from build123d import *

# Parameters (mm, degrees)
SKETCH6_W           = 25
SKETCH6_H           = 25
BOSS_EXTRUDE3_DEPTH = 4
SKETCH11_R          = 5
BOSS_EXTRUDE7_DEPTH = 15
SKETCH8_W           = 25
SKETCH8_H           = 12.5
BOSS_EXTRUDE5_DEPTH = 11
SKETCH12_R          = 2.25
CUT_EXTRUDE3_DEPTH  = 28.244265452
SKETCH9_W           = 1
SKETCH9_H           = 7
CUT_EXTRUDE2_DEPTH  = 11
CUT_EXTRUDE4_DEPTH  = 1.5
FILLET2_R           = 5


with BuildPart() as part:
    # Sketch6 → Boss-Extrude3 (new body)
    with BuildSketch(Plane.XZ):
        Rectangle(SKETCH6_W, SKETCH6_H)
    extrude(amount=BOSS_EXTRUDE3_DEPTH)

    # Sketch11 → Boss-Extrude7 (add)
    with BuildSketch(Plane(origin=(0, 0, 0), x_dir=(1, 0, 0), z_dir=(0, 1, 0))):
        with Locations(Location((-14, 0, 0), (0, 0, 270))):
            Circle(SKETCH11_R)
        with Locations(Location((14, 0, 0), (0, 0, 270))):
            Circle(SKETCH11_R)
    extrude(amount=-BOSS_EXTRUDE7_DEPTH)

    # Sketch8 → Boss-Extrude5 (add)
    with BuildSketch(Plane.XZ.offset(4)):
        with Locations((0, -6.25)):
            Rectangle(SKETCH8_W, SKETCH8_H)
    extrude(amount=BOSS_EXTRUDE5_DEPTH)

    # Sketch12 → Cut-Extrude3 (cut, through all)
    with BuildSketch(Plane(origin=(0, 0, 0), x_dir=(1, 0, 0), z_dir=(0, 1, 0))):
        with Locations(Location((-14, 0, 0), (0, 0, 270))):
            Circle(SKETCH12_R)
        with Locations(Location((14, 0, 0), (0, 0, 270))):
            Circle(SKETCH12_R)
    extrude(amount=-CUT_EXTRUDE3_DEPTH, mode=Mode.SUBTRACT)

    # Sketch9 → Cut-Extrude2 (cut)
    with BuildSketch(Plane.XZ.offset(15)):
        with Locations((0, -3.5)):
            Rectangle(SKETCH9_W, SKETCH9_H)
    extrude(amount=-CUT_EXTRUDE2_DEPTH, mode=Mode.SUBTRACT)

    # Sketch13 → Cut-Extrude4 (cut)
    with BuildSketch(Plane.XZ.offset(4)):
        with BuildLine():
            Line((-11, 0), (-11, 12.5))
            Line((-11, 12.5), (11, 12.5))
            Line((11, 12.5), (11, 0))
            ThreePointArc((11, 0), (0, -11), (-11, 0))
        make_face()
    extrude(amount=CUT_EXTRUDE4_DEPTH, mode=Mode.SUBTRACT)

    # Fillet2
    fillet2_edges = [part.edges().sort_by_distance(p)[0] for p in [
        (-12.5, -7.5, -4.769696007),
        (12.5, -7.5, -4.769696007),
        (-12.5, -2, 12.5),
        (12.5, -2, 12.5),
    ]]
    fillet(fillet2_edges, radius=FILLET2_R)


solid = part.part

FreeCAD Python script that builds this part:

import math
import FreeCAD as App
import Part
import Sketcher

V = App.Vector
Q = App.Units.Quantity


def edges_at(feature, points):
    """Names of the edges that pass closest to the given points."""
    edges = feature.Shape.Edges
    near = lambda p: min(range(len(edges)), key=lambda i: edges[i].distToShape(Part.Vertex(*p))[0])
    return sorted({f"Edge{near(p) + 1}" for p in points})

doc = App.newDocument("Part")
body = doc.addObject("PartDesign::Body", "Body")

sketch1 = body.newObject("Sketcher::SketchObject", "Sketch")
sketch1.AttachmentSupport = (doc.getObject("XZ_Plane"), [""])
sketch1.MapMode = "FlatFace"
sketch1.addGeometry(Part.LineSegment(V(-12.5, 12.5, 0), V(-12.5, -12.5, 0)), False)
sketch1.addGeometry(Part.LineSegment(V(-12.5, -12.5, 0), V(12.5, -12.5, 0)), False)
sketch1.addGeometry(Part.LineSegment(V(12.5, -12.5, 0), V(12.5, 12.5, 0)), False)
sketch1.addGeometry(Part.LineSegment(V(12.5, 12.5, 0), V(-12.5, 12.5, 0)), False)
sketch1.addConstraint(Sketcher.Constraint("Coincident", 0, 2, 1, 1))
sketch1.addConstraint(Sketcher.Constraint("Coincident", 1, 2, 2, 1))
sketch1.addConstraint(Sketcher.Constraint("Coincident", 2, 2, 3, 1))
sketch1.addConstraint(Sketcher.Constraint("Coincident", 3, 2, 0, 1))
sketch1.addConstraint(Sketcher.Constraint("Vertical", 0))
sketch1.addConstraint(Sketcher.Constraint("Horizontal", 1))
sketch1.addConstraint(Sketcher.Constraint("Vertical", 2))
sketch1.addConstraint(Sketcher.Constraint("Horizontal", 3))
sketch1.addConstraint(Sketcher.Constraint("Symmetric", 0, 2, 2, 2, -1, 1))
sketch1.addConstraint(Sketcher.Constraint("Equal", 3, 0))
sketch1.addConstraint(Sketcher.Constraint("DistanceX", 1, 1, 1, 2, Q("25 mm")))
pad1 = body.newObject("PartDesign::Pad", "Pad")
pad1.Profile = sketch1
pad1.Length = 4

sketch2 = body.newObject("Sketcher::SketchObject", "Sketch001")
sketch2.AttachmentSupport = (doc.getObject("XZ_Plane"), [""])
sketch2.MapMode = "FlatFace"
sketch2.addGeometry(Part.Circle(V(-14, 0, 0), V(0, 0, 1), 5), False)
sketch2.addGeometry(Part.Circle(V(14, 0, 0), V(0, 0, 1), 5), False)
sketch2.addConstraint(Sketcher.Constraint("Equal", 0, 1))
sketch2.addConstraint(Sketcher.Constraint("Symmetric", 0, 3, 1, 3, -1, 1))
sketch2.addConstraint(Sketcher.Constraint("PointOnObject", 0, 3, -1))
sketch2.addConstraint(Sketcher.Constraint("Diameter", 0, Q("10 mm")))
sketch2.addConstraint(Sketcher.Constraint("DistanceX", 0, 3, -1, 1, Q("14 mm")))
pad2 = body.newObject("PartDesign::Pad", "Pad001")
pad2.Profile = sketch2
pad2.Length = 15

sketch3 = body.newObject("Sketcher::SketchObject", "Sketch002")
sketch3.AttachmentSupport = (doc.getObject("XZ_Plane"), [""])
sketch3.MapMode = "FlatFace"
sketch3.AttachmentOffset = App.Placement(V(0, 0, 4), App.Rotation())
sketch3.addGeometry(Part.LineSegment(V(-12.5, 0, 0), V(-12.5, -12.5, 0)), False)
sketch3.addGeometry(Part.LineSegment(V(-12.5, -12.5, 0), V(12.5, -12.5, 0)), False)
sketch3.addGeometry(Part.LineSegment(V(12.5, -12.5, 0), V(12.5, 0, 0)), False)
sketch3.addGeometry(Part.LineSegment(V(12.5, 0, 0), V(-12.5, 0, 0)), False)
sketch3.addConstraint(Sketcher.Constraint("Coincident", 0, 2, 1, 1))
sketch3.addConstraint(Sketcher.Constraint("Coincident", 1, 2, 2, 1))
sketch3.addConstraint(Sketcher.Constraint("Coincident", 2, 2, 3, 1))
sketch3.addConstraint(Sketcher.Constraint("Coincident", 3, 2, 0, 1))
sketch3.addConstraint(Sketcher.Constraint("Vertical", 0))
sketch3.addConstraint(Sketcher.Constraint("Horizontal", 1))
sketch3.addConstraint(Sketcher.Constraint("Vertical", 2))
sketch3.addConstraint(Sketcher.Constraint("Horizontal", 3))
sketch3.addConstraint(Sketcher.Constraint("Symmetric", 2, 2, 3, 2, -1, 1))
sketch3.addConstraint(Sketcher.Constraint("DistanceX", 1, 1, 1, 2, Q("25 mm")))
sketch3.addConstraint(Sketcher.Constraint("DistanceY", 0, 2, 0, 1, Q("12.5 mm")))
pad3 = body.newObject("PartDesign::Pad", "Pad002")
pad3.Profile = sketch3
pad3.Length = 11

sketch4 = body.newObject("Sketcher::SketchObject", "Sketch003")
sketch4.AttachmentSupport = (doc.getObject("XZ_Plane"), [""])
sketch4.MapMode = "FlatFace"
sketch4.addGeometry(Part.Circle(V(-14, 0, 0), V(0, 0, 1), 2.25), False)
sketch4.addGeometry(Part.Circle(V(14, 0, 0), V(0, 0, 1), 2.25), False)
sketch4.addConstraint(Sketcher.Constraint("Equal", 0, 1))
sketch4.addConstraint(Sketcher.Constraint("Symmetric", 0, 3, 1, 3, -1, 1))
sketch4.addConstraint(Sketcher.Constraint("PointOnObject", 0, 3, -1))
sketch4.addConstraint(Sketcher.Constraint("Diameter", 0, Q("4.5 mm")))
sketch4.addConstraint(Sketcher.Constraint("DistanceX", 0, 3, -1, 1, Q("14 mm")))
pocket1 = body.newObject("PartDesign::Pocket", "Pocket")
pocket1.Profile = sketch4
pocket1.Type = "ThroughAll"
pocket1.Reversed = True

sketch5 = body.newObject("Sketcher::SketchObject", "Sketch004")
sketch5.AttachmentSupport = (doc.getObject("XZ_Plane"), [""])
sketch5.MapMode = "FlatFace"
sketch5.AttachmentOffset = App.Placement(V(0, 0, 15), App.Rotation())
sketch5.addGeometry(Part.LineSegment(V(-0.5, 0, 0), V(-0.5, -7, 0)), False)
sketch5.addGeometry(Part.LineSegment(V(-0.5, -7, 0), V(0.5, -7, 0)), False)
sketch5.addGeometry(Part.LineSegment(V(0.5, -7, 0), V(0.5, 0, 0)), False)
sketch5.addGeometry(Part.LineSegment(V(0.5, 0, 0), V(-0.5, 0, 0)), False)
sketch5.addConstraint(Sketcher.Constraint("Coincident", 0, 2, 1, 1))
sketch5.addConstraint(Sketcher.Constraint("Coincident", 1, 2, 2, 1))
sketch5.addConstraint(Sketcher.Constraint("Coincident", 2, 2, 3, 1))
sketch5.addConstraint(Sketcher.Constraint("Coincident", 3, 2, 0, 1))
sketch5.addConstraint(Sketcher.Constraint("Vertical", 0))
sketch5.addConstraint(Sketcher.Constraint("Horizontal", 1))
sketch5.addConstraint(Sketcher.Constraint("Vertical", 2))
sketch5.addConstraint(Sketcher.Constraint("Horizontal", 3))
sketch5.addConstraint(Sketcher.Constraint("Symmetric", 2, 2, 3, 2, -1, 1))
sketch5.addConstraint(Sketcher.Constraint("DistanceX", 1, 1, 1, 2, Q("1 mm")))
sketch5.addConstraint(Sketcher.Constraint("DistanceY", 0, 2, 0, 1, Q("7 mm")))
pocket2 = body.newObject("PartDesign::Pocket", "Pocket001")
pocket2.Profile = sketch5
pocket2.Length = 11

sketch6 = body.newObject("Sketcher::SketchObject", "Sketch005")
sketch6.AttachmentSupport = (doc.getObject("XZ_Plane"), [""])
sketch6.MapMode = "FlatFace"
sketch6.AttachmentOffset = App.Placement(V(0, 0, 4), App.Rotation())
sketch6.addGeometry(Part.LineSegment(V(-11, 12.5, 0), V(-11, 0, 0)), False)
sketch6.addGeometry(Part.ArcOfCircle(Part.Circle(V(0, 0, 0), V(0, 0, 1), 11), math.radians(180), math.radians(360)), False)
sketch6.addGeometry(Part.LineSegment(V(11, 0, 0), V(11, 12.5, 0)), False)
sketch6.addGeometry(Part.LineSegment(V(11, 12.5, 0), V(-11, 12.5, 0)), False)
sketch6.addConstraint(Sketcher.Constraint("Tangent", 0, 2, 1, 1))
sketch6.addConstraint(Sketcher.Constraint("Tangent", 1, 2, 2, 1))
sketch6.addConstraint(Sketcher.Constraint("Coincident", 2, 2, 3, 1))
sketch6.addConstraint(Sketcher.Constraint("Coincident", 3, 2, 0, 1))
sketch6.addConstraint(Sketcher.Constraint("Vertical", 0))
sketch6.addConstraint(Sketcher.Constraint("Vertical", 2))
sketch6.addConstraint(Sketcher.Constraint("Horizontal", 3))
sketch6.addConstraint(Sketcher.Constraint("Coincident", 1, 3, -1, 1))
sketch6.addConstraint(Sketcher.Constraint("Radius", 1, Q("11 mm")))
sketch6.addConstraint(Sketcher.Constraint("DistanceY", 0, 2, 0, 1, Q("12.5 mm")))
pocket3 = body.newObject("PartDesign::Pocket", "Pocket002")
pocket3.Profile = sketch6
pocket3.Length = 1.5
pocket3.Reversed = True
doc.recompute()

fillet = body.newObject("PartDesign::Fillet", "Fillet")
fillet.Base = (pocket3, edges_at(pocket3, [
    (-12.5, -7.5, -4.77),
    (12.5, -7.5, -4.77),
    (-12.5, -2, 12.5),
    (12.5, -2, 12.5),
]))
fillet.Radius = 5

doc.recompute()
